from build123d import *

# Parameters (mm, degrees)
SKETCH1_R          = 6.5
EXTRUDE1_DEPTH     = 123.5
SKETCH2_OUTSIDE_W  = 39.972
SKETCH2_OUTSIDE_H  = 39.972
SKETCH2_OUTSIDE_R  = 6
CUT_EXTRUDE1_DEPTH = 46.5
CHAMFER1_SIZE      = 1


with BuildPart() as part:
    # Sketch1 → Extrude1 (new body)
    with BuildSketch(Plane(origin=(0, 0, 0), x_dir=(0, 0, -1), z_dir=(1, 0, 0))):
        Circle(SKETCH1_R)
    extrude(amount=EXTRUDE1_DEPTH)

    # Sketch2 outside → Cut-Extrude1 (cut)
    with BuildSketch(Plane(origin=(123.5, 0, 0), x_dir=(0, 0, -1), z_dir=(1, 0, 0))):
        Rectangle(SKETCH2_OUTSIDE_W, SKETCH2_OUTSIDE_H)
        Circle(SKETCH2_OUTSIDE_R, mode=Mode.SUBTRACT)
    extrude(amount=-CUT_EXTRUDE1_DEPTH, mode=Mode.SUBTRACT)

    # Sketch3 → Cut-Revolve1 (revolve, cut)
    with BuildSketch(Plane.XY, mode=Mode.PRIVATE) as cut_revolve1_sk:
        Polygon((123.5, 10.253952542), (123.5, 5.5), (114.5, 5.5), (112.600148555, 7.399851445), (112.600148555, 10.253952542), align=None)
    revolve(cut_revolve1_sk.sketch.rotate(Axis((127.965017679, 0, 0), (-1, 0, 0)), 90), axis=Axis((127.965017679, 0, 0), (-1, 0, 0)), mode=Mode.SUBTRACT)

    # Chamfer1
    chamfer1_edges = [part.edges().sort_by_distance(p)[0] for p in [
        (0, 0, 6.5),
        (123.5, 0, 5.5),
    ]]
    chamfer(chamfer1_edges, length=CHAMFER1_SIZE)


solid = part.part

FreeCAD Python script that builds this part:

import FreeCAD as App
import Part
import Sketcher
Q = App.Units.Quantity


def edges_at(feature, points):
    """Names of the edges that pass closest to the given points."""
    edges = feature.Shape.Edges
    near = lambda p: min(range(len(edges)), key=lambda i: edges[i].distToShape(Part.Vertex(*p))[0])
    return sorted({f"Edge{near(p) + 1}" for p in points})


def add_polygon(sketch, points):
    """Adds a closed chain of lines whose ends are joined by coincident constraints."""
    first, n = sketch.GeometryCount, len(points)
    for a, b in zip(points, points[1:] + points[:1]):
        sketch.addGeometry(Part.LineSegment(App.Vector(*a, 0), App.Vector(*b, 0)), False)
    for i in range(n):
        sketch.addConstraint(Sketcher.Constraint("Coincident", first + i, 2, first + (i + 1) % n, 1))

doc = App.newDocument("Part")
body = doc.addObject("PartDesign::Body", "Body")

sketch1 = doc.addObject("Sketcher::SketchObject", "Sketch")
body.addObject(sketch1)
sketch1.AttachmentSupport = (doc.YZ_Plane, [""])
sketch1.MapMode = "FlatFace"
sketch1.addGeometry(Part.Circle(App.Vector(0, 0, 0), App.Vector(0, 0, 1), 6), False)
sketch1.addConstraint([
    Sketcher.Constraint("Coincident", 0, 3, -1, 1),
    Sketcher.Constraint("Diameter", 0, Q("13 mm")),
])
pad1 = doc.addObject("PartDesign::Pad", "Pad")
body.addObject(pad1)
pad1.Profile = sketch1
pad1.Length = 123.5

sketch2 = doc.addObject("Sketcher::SketchObject", "Sketch001")
body.addObject(sketch2)
sketch2.AttachmentSupport = (doc.YZ_Plane, [""])
sketch2.MapMode = "FlatFace"
sketch2.AttachmentOffset = App.Placement(App.Vector(0, 0, 123.5), App.Rotation())
add_polygon(sketch2, [(20, 20), (-20, 20), (-20, -20), (20, -20)])
sketch2.addGeometry(Part.Circle(App.Vector(0, 0, 0), App.Vector(0, 0, 1), 6), False)
sketch2.addConstraint([
    Sketcher.Constraint("Horizontal", 0),
    Sketcher.Constraint("Vertical", 1),
    Sketcher.Constraint("Horizontal", 2),
    Sketcher.Constraint("Vertical", 3),
    Sketcher.Constraint("Coincident", 4, 3, -1, 1),
    Sketcher.Constraint("Symmetric", 0, 2, 2, 2, -1, 1),
    Sketcher.Constraint("Equal", 2, 1),
    Sketcher.Constraint("Diameter", 4, Q("12 mm")),
    Sketcher.Constraint("DistanceX", 0, 2, 0, 1, Q("39.972 mm")),
])
pocket1 = doc.addObject("PartDesign::Pocket", "Pocket")
body.addObject(pocket1)
pocket1.Profile = sketch2
pocket1.Length = 46.5

sketch3 = doc.addObject("Sketcher::SketchObject", "Sketch002")
body.addObject(sketch3)
sketch3.AttachmentSupport = (doc.XY_Plane, [""])
sketch3.MapMode = "FlatFace"
add_polygon(sketch3, [(123.5, 5.5), (123.5, 10.3), (112.6, 10.3), (112.6, 7.4), (114.5, 5.5)])
sketch3.addConstraint([
    Sketcher.Constraint("Vertical", 0),
    Sketcher.Constraint("Horizontal", 1),
    Sketcher.Constraint("Vertical", 2),
    Sketcher.Constraint("Horizontal", 4),
    Sketcher.Constraint("DistanceX", 4, 1, 4, 2, Q("9 mm")),
    Sketcher.Constraint("Angle", 3, Q("-45 deg")),
    Sketcher.Constraint("DistanceX", -1, 1, 0, 2, Q("123.5 mm")),
    Sketcher.Constraint("DistanceY", -1, 1, 3, 2, Q("5.5 mm")),
    Sketcher.Constraint("DistanceY", 2, 2, 2, 1, Q("2.854101 mm")),
    Sketcher.Constraint("DistanceX", 1, 2, 1, 1, Q("10.899851 mm")),
])
groove = doc.addObject("PartDesign::Groove", "Groove")
body.addObject(groove)
groove.Profile = sketch3
groove.ReferenceAxis = (sketch3, ["H_Axis"])
groove.Angle = 360
doc.recompute()

chamfer = doc.addObject("PartDesign::Chamfer", "Chamfer")
body.addObject(chamfer)
chamfer.Base = (groove, edges_at(groove, [(0, 0, 6.5), (123.5, 0, 5.5)]))
chamfer.Size = 1

doc.recompute()
